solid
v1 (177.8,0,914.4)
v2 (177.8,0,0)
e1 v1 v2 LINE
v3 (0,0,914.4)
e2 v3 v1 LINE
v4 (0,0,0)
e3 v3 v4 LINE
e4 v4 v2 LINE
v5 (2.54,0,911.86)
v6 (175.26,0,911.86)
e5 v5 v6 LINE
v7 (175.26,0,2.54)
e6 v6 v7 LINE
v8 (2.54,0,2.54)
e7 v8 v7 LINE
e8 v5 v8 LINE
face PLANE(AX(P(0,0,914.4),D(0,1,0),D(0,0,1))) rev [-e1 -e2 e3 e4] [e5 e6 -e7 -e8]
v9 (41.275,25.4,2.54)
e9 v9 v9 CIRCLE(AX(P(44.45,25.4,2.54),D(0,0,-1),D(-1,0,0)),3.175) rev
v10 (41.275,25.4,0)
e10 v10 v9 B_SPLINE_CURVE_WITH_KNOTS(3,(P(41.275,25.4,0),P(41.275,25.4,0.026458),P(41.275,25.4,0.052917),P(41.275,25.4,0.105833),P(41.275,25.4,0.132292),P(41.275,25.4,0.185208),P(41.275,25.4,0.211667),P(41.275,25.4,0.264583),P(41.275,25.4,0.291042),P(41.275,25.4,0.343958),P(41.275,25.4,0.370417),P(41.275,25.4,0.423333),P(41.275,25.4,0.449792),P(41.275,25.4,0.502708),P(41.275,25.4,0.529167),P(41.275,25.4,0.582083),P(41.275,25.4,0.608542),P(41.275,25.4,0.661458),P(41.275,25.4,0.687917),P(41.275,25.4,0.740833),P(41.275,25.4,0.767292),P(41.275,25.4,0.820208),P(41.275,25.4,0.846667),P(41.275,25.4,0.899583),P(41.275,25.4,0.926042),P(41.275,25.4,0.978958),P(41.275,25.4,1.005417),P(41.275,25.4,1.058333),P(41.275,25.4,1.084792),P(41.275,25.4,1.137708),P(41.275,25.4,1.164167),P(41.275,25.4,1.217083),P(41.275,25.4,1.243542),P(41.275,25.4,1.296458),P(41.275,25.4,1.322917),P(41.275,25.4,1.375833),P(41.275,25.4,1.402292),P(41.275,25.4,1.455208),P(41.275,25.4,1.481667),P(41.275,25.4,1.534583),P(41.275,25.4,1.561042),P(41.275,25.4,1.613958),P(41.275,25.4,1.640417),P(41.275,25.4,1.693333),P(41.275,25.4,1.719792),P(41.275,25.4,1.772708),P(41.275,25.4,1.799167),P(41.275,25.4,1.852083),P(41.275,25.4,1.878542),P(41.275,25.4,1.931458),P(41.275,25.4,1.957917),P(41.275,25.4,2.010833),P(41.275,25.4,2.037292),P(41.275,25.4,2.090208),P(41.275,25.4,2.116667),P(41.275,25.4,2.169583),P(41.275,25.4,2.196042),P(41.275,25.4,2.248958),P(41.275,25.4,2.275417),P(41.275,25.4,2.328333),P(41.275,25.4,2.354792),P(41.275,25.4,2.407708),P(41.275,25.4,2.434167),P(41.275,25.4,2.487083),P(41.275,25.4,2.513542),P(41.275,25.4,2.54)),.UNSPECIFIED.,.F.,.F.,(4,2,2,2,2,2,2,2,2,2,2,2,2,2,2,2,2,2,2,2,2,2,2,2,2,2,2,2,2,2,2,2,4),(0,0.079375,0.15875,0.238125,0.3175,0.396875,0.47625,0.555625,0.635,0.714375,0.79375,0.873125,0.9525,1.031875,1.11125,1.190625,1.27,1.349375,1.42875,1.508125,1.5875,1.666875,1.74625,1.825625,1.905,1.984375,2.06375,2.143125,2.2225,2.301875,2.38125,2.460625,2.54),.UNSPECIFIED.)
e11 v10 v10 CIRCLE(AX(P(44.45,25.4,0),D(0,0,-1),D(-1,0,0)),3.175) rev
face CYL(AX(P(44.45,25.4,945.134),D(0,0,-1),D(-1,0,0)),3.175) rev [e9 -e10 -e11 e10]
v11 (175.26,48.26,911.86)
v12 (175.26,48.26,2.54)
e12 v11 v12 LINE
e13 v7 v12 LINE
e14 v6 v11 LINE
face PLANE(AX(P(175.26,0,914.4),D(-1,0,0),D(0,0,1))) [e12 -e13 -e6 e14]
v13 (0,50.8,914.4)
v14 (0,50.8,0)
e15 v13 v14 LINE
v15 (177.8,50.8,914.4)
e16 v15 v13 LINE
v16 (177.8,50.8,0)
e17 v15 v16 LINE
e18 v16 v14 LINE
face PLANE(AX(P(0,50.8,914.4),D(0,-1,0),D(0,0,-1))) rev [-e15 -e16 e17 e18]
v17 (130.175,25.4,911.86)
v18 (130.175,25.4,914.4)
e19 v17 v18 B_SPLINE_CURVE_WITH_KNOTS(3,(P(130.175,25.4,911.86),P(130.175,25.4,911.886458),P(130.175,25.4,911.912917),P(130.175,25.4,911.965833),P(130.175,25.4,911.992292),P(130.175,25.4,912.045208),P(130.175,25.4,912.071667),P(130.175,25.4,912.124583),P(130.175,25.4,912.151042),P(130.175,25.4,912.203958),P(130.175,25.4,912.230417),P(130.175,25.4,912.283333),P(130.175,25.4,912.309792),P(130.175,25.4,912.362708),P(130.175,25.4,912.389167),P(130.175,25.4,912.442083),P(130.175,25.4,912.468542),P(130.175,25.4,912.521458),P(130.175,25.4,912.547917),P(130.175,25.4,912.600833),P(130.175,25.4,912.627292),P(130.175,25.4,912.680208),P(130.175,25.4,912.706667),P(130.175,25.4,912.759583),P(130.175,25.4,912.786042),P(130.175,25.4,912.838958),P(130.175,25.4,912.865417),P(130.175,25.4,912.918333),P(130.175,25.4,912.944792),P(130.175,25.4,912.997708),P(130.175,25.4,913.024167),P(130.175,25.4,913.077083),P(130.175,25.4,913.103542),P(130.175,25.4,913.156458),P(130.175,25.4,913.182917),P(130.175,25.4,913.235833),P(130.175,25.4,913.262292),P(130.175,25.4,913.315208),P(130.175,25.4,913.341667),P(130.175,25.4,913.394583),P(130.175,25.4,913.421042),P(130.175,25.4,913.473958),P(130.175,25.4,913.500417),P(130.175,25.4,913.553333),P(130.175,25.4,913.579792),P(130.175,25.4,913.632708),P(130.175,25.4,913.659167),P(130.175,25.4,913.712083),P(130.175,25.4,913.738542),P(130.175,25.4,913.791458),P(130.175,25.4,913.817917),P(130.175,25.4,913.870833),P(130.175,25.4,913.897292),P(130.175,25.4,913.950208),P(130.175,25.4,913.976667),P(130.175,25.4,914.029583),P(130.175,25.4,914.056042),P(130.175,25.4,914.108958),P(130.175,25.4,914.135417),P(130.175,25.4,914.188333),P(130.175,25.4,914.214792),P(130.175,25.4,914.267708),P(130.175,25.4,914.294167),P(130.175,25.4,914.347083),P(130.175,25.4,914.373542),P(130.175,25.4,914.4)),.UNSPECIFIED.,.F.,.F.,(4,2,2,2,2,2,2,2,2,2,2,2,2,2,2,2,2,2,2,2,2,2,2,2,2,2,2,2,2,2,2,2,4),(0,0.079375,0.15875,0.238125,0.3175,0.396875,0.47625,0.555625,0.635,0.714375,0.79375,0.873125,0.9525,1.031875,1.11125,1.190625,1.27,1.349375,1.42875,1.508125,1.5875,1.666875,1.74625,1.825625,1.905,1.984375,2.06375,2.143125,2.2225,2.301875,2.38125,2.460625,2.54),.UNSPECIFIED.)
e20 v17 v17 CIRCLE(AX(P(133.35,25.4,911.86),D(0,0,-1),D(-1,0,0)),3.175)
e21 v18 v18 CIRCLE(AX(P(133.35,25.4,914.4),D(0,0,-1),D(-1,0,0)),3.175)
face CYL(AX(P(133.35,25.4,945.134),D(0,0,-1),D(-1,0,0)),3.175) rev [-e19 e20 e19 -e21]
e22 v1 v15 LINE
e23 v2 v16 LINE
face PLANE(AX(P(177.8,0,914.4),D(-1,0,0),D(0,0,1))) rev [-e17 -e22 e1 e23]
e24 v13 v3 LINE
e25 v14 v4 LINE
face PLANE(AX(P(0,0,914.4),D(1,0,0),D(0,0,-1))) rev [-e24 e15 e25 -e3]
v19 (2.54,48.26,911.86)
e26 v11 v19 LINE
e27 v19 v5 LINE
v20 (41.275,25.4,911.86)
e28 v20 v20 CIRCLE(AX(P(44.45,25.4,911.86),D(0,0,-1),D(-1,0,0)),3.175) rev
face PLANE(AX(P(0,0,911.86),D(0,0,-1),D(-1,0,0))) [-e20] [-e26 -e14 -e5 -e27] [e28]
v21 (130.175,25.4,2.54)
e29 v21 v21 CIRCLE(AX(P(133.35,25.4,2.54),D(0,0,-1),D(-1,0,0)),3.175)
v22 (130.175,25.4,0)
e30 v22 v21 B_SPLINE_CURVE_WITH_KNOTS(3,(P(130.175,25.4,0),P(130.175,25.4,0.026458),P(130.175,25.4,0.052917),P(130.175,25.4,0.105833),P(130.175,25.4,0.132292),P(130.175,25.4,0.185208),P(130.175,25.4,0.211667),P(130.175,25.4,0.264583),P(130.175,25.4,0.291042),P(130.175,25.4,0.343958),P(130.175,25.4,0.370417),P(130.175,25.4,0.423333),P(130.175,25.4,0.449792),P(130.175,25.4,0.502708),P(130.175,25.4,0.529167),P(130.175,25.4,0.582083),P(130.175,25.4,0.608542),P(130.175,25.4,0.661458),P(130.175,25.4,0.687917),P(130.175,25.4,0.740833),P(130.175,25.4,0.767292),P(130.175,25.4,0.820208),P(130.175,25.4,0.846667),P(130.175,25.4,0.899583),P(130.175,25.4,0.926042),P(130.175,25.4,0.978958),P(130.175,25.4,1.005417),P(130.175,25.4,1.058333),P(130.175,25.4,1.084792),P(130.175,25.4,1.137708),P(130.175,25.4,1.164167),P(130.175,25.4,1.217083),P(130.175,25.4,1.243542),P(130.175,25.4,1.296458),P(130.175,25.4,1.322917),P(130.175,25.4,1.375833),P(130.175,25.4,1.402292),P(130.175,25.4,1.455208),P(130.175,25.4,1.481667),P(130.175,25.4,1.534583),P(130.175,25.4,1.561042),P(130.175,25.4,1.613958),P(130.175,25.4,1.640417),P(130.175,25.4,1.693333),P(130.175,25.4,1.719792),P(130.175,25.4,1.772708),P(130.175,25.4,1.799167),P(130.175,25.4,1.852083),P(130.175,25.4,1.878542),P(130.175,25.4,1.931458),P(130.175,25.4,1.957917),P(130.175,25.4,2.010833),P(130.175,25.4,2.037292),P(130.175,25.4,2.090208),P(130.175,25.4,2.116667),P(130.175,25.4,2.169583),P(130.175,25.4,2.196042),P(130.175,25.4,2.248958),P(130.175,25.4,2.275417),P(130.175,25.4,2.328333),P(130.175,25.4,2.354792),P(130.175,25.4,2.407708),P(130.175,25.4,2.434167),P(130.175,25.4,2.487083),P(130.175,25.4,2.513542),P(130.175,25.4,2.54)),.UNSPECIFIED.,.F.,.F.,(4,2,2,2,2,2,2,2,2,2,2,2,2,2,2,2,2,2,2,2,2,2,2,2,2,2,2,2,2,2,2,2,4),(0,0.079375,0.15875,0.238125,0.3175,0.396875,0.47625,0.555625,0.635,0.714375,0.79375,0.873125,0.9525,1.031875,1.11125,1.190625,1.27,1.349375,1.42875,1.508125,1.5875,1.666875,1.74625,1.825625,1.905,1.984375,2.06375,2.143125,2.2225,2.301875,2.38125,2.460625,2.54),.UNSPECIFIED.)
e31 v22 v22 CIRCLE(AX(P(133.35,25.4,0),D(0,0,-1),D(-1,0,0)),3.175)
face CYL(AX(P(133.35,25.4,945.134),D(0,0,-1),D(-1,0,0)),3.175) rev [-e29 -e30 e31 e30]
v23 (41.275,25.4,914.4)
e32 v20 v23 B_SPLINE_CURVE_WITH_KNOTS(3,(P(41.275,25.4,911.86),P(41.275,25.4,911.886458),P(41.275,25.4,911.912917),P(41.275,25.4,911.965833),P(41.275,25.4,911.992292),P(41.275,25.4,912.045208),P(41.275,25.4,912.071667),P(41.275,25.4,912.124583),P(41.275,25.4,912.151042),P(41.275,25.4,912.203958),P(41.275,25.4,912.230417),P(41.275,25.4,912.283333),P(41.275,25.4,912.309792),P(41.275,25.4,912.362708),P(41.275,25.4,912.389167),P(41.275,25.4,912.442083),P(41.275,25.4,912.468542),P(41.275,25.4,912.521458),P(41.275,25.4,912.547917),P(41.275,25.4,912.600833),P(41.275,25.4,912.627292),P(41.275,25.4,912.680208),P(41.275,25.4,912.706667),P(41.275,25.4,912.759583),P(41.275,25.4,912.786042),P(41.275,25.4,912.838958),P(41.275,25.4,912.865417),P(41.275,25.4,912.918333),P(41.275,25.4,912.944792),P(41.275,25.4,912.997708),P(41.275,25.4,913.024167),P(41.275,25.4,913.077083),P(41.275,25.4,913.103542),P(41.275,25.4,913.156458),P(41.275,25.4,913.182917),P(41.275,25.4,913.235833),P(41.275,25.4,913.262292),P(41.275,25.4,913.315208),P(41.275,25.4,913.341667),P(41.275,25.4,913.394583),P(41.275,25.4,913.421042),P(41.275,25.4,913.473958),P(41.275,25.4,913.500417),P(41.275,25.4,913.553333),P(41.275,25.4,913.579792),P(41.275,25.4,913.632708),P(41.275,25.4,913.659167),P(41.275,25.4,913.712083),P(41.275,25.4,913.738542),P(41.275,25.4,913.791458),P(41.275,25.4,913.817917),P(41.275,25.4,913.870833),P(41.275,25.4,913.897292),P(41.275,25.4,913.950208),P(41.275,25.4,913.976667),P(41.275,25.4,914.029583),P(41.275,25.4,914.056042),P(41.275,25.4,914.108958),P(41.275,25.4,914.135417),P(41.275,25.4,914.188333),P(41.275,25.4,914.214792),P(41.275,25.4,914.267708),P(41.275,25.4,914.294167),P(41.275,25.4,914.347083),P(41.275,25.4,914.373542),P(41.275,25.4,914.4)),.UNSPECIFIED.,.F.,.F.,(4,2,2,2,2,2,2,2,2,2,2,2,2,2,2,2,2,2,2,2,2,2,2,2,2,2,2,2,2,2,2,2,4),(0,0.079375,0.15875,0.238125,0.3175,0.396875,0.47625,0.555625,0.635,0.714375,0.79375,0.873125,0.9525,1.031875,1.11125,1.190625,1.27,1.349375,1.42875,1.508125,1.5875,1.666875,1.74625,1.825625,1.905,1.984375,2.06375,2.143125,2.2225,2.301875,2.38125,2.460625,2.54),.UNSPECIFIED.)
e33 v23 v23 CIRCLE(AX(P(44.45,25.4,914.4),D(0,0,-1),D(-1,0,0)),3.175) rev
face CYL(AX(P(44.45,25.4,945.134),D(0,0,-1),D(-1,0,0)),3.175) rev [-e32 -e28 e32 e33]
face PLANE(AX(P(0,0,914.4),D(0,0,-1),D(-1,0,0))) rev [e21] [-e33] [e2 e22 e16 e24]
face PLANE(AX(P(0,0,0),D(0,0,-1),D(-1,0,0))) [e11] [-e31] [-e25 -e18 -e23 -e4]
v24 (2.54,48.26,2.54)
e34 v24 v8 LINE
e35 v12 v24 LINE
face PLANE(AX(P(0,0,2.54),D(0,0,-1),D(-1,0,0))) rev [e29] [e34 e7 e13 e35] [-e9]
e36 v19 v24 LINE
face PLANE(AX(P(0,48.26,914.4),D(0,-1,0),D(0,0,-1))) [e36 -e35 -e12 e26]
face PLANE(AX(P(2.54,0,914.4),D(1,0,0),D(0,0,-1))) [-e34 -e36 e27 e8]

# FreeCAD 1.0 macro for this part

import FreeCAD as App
import Part
import Sketcher

V = App.Vector
Q = App.Units.Quantity


def faces_at(feature, points):
    """Names of the faces that lie closest to the given points."""
    faces = feature.Shape.Faces
    near = lambda p: min(range(len(faces)), key=lambda i: faces[i].distToShape(Part.Vertex(*p))[0])
    return sorted({f"Face{near(p) + 1}" for p in points})

doc = App.newDocument("Part")
body = doc.addObject("PartDesign::Body", "Body")

sketch1 = body.newObject("Sketcher::SketchObject", "Sketch")
sketch1.AttachmentSupport = (doc.getObject("XY_Plane"), [""])
sketch1.MapMode = "FlatFace"
sketch1.addGeometry(Part.LineSegment(V(0, 51, 0), V(0, 0, 0)), False)
sketch1.addGeometry(Part.LineSegment(V(0, 0, 0), V(178, 0, 0)), False)
sketch1.addGeometry(Part.LineSegment(V(178, 0, 0), V(178, 51, 0)), False)
sketch1.addGeometry(Part.LineSegment(V(178, 51, 0), V(0, 51, 0)), False)
sketch1.addConstraint(Sketcher.Constraint("Coincident", 0, 2, 1, 1))
sketch1.addConstraint(Sketcher.Constraint("Coincident", 1, 2, 2, 1))
sketch1.addConstraint(Sketcher.Constraint("Coincident", 2, 2, 3, 1))
sketch1.addConstraint(Sketcher.Constraint("Coincident", 3, 2, 0, 1))
sketch1.addConstraint(Sketcher.Constraint("Vertical", 0))
sketch1.addConstraint(Sketcher.Constraint("Horizontal", 1))
sketch1.addConstraint(Sketcher.Constraint("Vertical", 2))
sketch1.addConstraint(Sketcher.Constraint("Horizontal", 3))
sketch1.addConstraint(Sketcher.Constraint("Coincident", 0, 2, -1, 1))
sketch1.addConstraint(Sketcher.Constraint("DistanceX", 1, 1, 1, 2, Q("7 in")))
sketch1.addConstraint(Sketcher.Constraint("DistanceY", 0, 2, 0, 1, Q("2 in")))
pad1 = body.newObject("PartDesign::Pad", "Pad")
pad1.Profile = sketch1
pad1.Length = Q("36 in")
doc.recompute()

thickness = body.newObject("PartDesign::Thickness", "Thickness")
thickness.Base = (pad1, faces_at(pad1, [(88.9, 0, 457.2)]))
thickness.Value = Q("0.1 in")
thickness.Reversed = True
thickness.Join = "Intersection"

sketch2 = body.newObject("Sketcher::SketchObject", "Sketch001")
sketch2.AttachmentSupport = (doc.getObject("XY_Plane"), [""])
sketch2.MapMode = "FlatFace"
sketch2.addGeometry(Part.Circle(V(44.5, 25.4, 0), V(0, 0, 1), 3.2), False)
sketch2.addGeometry(Part.Circle(V(133.3, 25.4, 0), V(0, 0, 1), 3.2), False)
sketch2.addConstraint(Sketcher.Constraint("Equal", 0, 1))
sketch2.addConstraint(Sketcher.Constraint("Horizontal", 0, 3, 1, 3))
sketch2.addConstraint(Sketcher.Constraint("Diameter", 0, Q("0.25 in")))
sketch2.addConstraint(Sketcher.Constraint("DistanceY", -1, 1, 0, 3, Q("1 in")))
sketch2.addConstraint(Sketcher.Constraint("DistanceX", 0, 3, 1, 3, Q("3.5 in")))
sketch2.addConstraint(Sketcher.Constraint("DistanceX", -1, 1, 0, 3, Q("1.75 in")))
pocket1 = body.newObject("PartDesign::Pocket", "Pocket")
pocket1.Profile = sketch2
pocket1.Length = Q("37.21 in")
pocket1.Reversed = True

doc.recompute()
